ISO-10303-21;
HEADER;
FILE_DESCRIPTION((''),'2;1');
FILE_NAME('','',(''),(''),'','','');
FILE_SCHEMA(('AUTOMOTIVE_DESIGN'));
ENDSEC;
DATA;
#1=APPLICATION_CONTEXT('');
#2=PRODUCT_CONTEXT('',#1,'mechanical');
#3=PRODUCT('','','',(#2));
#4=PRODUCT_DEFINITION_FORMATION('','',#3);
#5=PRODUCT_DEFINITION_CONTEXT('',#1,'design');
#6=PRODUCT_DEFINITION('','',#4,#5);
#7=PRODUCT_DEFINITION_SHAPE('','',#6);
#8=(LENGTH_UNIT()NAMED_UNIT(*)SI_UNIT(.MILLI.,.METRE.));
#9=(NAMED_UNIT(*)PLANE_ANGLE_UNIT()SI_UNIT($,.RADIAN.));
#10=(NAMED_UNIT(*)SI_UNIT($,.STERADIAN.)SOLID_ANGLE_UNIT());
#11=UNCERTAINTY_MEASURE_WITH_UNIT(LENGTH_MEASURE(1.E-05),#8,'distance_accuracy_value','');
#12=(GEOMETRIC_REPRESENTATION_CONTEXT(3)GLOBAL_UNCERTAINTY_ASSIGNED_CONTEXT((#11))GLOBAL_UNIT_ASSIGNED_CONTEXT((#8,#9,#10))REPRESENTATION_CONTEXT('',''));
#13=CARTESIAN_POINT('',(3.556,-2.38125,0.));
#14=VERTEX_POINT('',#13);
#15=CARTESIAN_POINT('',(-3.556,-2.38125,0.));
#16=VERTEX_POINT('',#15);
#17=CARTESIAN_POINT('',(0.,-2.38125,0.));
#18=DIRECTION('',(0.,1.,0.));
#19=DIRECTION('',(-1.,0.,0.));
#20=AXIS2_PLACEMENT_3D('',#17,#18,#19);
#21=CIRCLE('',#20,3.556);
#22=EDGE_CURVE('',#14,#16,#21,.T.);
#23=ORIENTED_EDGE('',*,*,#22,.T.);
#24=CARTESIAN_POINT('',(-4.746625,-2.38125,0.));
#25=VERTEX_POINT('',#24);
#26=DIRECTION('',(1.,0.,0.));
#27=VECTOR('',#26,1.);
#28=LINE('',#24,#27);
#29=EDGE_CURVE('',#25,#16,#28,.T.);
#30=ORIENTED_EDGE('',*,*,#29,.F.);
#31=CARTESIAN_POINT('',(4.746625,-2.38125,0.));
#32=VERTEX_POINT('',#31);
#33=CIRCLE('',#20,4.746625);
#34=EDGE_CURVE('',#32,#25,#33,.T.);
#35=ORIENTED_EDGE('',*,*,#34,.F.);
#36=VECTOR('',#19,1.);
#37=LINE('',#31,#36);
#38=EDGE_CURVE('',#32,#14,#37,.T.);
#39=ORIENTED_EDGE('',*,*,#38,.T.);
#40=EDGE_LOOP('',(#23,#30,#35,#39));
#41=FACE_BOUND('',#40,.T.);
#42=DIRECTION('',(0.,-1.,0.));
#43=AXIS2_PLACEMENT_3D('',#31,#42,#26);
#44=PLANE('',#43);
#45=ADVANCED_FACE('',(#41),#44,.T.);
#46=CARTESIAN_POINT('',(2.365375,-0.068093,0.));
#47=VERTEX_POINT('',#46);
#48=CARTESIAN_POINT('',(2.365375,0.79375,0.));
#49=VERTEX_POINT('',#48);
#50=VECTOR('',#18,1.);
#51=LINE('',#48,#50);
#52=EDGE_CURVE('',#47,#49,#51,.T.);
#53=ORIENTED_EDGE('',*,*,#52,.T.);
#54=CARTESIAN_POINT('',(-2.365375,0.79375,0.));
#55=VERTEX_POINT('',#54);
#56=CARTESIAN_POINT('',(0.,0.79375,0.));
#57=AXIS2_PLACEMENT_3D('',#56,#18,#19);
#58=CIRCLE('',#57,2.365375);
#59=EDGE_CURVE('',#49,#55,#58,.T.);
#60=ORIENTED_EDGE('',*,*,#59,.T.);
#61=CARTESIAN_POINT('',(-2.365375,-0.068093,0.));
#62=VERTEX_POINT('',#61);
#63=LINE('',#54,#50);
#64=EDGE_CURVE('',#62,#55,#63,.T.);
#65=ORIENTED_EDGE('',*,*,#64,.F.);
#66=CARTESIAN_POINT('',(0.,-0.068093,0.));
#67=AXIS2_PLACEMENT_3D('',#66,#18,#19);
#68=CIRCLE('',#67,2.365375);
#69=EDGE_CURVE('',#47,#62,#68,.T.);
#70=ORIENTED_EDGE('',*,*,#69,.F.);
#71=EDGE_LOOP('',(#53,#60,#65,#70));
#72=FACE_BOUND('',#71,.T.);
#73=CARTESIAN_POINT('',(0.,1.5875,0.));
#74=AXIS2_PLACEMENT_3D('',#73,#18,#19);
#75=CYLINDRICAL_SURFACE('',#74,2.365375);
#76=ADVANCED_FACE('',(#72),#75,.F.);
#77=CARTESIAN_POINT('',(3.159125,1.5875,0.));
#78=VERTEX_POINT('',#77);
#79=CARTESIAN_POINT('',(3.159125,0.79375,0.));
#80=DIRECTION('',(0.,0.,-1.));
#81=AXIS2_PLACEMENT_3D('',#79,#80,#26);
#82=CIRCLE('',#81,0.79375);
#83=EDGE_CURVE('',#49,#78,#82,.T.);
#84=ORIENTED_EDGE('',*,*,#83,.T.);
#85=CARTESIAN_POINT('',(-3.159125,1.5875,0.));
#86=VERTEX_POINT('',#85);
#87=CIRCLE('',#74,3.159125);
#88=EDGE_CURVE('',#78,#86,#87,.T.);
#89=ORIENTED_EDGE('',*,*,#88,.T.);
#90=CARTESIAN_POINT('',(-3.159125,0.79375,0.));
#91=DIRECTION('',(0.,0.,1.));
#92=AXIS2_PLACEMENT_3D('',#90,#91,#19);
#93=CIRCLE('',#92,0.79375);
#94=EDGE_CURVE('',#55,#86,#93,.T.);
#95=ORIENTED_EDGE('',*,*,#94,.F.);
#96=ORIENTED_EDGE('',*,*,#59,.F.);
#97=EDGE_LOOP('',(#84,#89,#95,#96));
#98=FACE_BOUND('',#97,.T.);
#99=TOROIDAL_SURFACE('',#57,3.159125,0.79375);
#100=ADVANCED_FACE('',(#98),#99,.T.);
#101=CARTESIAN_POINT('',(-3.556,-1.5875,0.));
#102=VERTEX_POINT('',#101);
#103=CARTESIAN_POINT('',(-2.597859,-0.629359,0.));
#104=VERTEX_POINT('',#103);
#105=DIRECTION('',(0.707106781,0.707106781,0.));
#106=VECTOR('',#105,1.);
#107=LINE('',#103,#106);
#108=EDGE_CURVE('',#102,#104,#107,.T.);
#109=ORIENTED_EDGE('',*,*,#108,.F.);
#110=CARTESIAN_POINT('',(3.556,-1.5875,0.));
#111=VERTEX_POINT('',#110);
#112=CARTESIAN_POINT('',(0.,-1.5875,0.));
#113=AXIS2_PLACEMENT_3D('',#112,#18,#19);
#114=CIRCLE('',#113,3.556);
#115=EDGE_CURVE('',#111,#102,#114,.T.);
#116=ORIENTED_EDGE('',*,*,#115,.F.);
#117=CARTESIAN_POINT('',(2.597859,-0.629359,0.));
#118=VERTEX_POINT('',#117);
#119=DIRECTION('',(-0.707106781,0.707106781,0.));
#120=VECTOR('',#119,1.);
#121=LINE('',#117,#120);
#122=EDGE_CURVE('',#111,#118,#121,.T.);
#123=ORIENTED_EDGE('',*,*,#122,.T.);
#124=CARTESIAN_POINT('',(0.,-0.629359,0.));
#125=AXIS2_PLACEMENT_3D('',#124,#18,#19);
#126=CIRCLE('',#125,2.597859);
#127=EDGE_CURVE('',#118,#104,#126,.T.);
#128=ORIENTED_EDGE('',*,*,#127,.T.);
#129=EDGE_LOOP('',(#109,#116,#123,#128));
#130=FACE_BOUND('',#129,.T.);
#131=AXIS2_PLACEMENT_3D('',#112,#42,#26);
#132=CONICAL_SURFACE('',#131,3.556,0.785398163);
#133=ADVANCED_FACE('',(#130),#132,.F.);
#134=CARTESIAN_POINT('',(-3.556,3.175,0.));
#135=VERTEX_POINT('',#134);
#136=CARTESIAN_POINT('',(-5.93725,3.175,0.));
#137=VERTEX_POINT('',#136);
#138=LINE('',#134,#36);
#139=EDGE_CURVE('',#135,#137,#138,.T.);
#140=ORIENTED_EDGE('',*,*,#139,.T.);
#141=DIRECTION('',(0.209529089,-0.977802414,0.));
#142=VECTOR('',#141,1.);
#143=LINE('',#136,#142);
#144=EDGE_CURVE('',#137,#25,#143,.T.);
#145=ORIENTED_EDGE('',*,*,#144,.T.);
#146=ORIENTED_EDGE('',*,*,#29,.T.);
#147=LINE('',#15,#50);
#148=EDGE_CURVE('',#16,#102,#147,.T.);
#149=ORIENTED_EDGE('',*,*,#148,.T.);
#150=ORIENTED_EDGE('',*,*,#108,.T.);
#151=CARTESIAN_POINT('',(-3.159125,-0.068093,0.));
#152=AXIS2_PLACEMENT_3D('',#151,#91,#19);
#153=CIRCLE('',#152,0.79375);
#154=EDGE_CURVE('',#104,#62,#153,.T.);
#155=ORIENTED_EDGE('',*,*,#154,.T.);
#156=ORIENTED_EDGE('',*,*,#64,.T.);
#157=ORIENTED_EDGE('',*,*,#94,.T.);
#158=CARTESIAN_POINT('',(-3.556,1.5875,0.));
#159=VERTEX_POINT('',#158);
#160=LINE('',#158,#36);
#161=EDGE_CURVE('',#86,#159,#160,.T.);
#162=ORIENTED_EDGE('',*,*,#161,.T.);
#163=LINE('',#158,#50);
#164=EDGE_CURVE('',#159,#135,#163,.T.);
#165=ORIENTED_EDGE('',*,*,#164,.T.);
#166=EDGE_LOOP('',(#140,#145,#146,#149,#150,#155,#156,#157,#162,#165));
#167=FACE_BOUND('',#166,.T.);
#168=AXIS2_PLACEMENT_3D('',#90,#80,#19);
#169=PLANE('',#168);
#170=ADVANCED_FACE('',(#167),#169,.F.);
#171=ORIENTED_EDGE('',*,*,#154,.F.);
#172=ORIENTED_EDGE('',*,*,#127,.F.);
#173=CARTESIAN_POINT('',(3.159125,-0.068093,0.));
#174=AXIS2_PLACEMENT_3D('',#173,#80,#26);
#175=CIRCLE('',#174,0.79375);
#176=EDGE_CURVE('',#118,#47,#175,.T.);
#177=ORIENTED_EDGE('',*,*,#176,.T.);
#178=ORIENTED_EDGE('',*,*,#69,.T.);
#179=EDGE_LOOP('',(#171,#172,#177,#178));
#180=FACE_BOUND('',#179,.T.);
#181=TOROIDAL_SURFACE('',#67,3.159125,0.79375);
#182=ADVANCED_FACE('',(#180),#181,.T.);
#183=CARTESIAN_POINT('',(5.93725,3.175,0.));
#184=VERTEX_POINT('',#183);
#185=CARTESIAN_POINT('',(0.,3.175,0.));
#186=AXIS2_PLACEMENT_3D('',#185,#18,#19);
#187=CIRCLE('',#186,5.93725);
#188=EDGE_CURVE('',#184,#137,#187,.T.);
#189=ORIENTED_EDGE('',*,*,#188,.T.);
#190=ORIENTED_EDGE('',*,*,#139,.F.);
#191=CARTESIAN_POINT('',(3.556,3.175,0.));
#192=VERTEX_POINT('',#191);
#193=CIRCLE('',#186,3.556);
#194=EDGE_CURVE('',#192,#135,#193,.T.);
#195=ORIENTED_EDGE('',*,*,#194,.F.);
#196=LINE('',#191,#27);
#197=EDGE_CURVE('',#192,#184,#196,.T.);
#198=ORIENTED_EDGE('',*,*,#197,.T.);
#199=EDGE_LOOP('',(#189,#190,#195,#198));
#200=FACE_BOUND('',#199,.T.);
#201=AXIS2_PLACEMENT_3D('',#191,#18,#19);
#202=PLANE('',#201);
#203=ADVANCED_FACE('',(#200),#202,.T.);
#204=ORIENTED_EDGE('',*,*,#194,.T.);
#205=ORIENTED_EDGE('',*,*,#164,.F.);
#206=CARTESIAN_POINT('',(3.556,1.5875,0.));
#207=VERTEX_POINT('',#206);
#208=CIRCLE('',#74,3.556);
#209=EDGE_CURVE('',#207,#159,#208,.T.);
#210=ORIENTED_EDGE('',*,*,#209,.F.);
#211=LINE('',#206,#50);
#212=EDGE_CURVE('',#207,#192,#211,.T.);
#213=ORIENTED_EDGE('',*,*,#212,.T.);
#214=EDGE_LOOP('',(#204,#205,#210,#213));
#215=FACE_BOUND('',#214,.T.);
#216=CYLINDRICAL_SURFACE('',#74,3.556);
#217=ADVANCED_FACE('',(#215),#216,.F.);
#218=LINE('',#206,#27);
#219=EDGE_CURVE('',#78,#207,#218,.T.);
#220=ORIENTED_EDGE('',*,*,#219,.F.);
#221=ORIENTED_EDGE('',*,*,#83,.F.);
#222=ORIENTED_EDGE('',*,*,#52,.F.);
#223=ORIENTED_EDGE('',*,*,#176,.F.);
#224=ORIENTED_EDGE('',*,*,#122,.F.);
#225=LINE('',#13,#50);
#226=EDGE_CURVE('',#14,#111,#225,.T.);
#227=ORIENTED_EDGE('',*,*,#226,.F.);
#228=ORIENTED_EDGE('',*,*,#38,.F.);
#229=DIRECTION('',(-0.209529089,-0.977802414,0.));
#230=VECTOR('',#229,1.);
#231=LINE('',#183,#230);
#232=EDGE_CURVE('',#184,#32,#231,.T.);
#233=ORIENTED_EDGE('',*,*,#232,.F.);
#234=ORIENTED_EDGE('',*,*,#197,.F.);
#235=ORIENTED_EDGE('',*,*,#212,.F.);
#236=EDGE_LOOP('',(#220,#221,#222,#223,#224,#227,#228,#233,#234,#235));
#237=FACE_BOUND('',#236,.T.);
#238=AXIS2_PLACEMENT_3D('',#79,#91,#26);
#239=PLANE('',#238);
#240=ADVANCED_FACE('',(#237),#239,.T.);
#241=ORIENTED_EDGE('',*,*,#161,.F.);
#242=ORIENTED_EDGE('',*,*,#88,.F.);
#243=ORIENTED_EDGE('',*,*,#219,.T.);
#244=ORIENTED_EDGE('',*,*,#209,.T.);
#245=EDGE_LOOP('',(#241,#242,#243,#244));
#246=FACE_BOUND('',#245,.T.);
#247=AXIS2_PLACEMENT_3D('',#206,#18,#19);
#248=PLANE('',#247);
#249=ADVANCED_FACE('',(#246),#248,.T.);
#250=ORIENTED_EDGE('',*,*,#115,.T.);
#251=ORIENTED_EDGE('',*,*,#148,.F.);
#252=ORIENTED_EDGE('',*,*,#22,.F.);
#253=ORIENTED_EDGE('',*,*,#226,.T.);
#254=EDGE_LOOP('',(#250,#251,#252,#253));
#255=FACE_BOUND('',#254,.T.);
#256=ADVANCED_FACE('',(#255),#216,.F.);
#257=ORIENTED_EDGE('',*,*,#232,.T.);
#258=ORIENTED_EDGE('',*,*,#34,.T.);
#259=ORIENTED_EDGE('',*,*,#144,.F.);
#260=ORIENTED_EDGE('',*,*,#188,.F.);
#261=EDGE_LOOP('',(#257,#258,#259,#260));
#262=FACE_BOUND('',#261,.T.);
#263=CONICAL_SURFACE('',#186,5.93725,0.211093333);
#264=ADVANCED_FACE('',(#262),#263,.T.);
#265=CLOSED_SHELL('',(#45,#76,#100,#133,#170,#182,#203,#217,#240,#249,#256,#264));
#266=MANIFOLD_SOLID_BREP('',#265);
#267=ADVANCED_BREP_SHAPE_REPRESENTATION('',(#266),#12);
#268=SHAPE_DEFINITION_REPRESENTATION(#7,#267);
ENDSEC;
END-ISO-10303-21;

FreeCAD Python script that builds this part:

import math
import FreeCAD as App
import Part
import Sketcher
from FreeCAD import Vector
Q = App.Units.Quantity

doc = App.newDocument("Part")
params = doc.addObject("Spreadsheet::Sheet", "Params")
for row, (alias, value) in enumerate([
    ("sketch1_radius", "0.03125 in"),
    ("sketch1_width", "0.09375 in"),
    ("sketch1_width2", "0.046875 in"),
    ("sketch1_width3", "0.015625 in"),
    ("sketch1_height", "0.0625 in"),
    ("revolution_angle", "180 deg"),
], start=1):
    params.set(f"A{row}", alias)
    params.set(f"B{row}", "=" + value)
    params.setAlias(f"B{row}", alias)

body = doc.addObject("PartDesign::Body", "Body")

# Sketch on XY plane
sketch1 = body.newObject("Sketcher::SketchObject", "Sketch")
sketch1.AttachmentSupport = (doc.getObject("XY_Plane"), [""])
sketch1.MapMode = "FlatFace"
sketch1.addGeometry([
    Part.LineSegment(Vector(-3.556, 1.5875, 0), Vector(-3.556, 3.175, 0)),  # 0
    Part.LineSegment(Vector(-3.556, 3.175, 0), Vector(-5.93725, 3.175, 0)),  # 1
    Part.LineSegment(Vector(-5.93725, 3.175, 0), Vector(-4.746625, -2.38125, 0)),  # 2
    Part.LineSegment(Vector(-4.746625, -2.38125, 0), Vector(-3.556, -2.38125, 0)),  # 3
    Part.LineSegment(Vector(-3.556, -2.38125, 0), Vector(-3.556, -1.5875, 0)),  # 4
    Part.LineSegment(Vector(-3.556, -1.5875, 0), Vector(-2.597859, -0.629359, 0)),  # 5
    Part.ArcOfCircle(Part.Circle(Vector(-3.159125, -0.068093, 0), Vector(0, 0, 1), 0.79375), math.radians(-45), math.radians(0)),  # 6
    Part.LineSegment(Vector(-2.365375, -0.068093, 0), Vector(-2.365375, 0.79375, 0)),  # 7
    Part.ArcOfCircle(Part.Circle(Vector(-3.159125, 0.79375, 0), Vector(0, 0, 1), 0.79375), math.radians(0), math.radians(90)),  # 8
    Part.LineSegment(Vector(-3.159125, 1.5875, 0), Vector(-3.556, 1.5875, 0)),  # 9
], False)
sketch1.addConstraint([
    Sketcher.Constraint("Coincident", 0, 2, 1, 1),
    Sketcher.Constraint("Coincident", 1, 2, 2, 1),
    Sketcher.Constraint("Coincident", 2, 2, 3, 1),
    Sketcher.Constraint("Coincident", 3, 2, 4, 1),
    Sketcher.Constraint("Coincident", 4, 2, 5, 1),
    Sketcher.Constraint("Tangent", 5, 2, 6, 1),
    Sketcher.Constraint("Tangent", 6, 2, 7, 1),
    Sketcher.Constraint("Tangent", 7, 2, 8, 1),
    Sketcher.Constraint("Tangent", 8, 2, 9, 1),
    Sketcher.Constraint("Coincident", 9, 2, 0, 1),
    Sketcher.Constraint("Vertical", 0),
    Sketcher.Constraint("Horizontal", 1),
    Sketcher.Constraint("Horizontal", 3),
    Sketcher.Constraint("Vertical", 4),
    Sketcher.Constraint("Vertical", 7),
    Sketcher.Constraint("Horizontal", 9),
    Sketcher.Constraint("Equal", 6, 8),
    Sketcher.Constraint("Symmetric", 4, 2, 9, 2, -1),
    Sketcher.Constraint("Angle", 5, Q("45 deg")),
    Sketcher.Constraint("Radius", 6, Q("0.03125 in")),
    Sketcher.Constraint("DistanceX", 1, 2, 1, 1, Q("0.09375 in")),
    Sketcher.Constraint("DistanceX", 3, 1, 3, 2, Q("0.046875 in")),
    Sketcher.Constraint("DistanceX", 9, 2, 9, 1, Q("0.015625 in")),
    Sketcher.Constraint("DistanceY", 0, 1, 0, 2, Q("0.0625 in")),
    Sketcher.Constraint("DistanceY", 4, 1, 4, 2, Q("0.03125 in")),
    Sketcher.Constraint("DistanceX", 0, 2, -1, 1, Q("0.14 in")),
    Sketcher.Constraint("DistanceY", -1, 1, 8, 3, Q("0.03125 in")),
])
sketch1.setExpression("Constraints[19]", "Params.sketch1_radius")
sketch1.setExpression("Constraints[20]", "Params.sketch1_width")
sketch1.setExpression("Constraints[21]", "Params.sketch1_width2")
sketch1.setExpression("Constraints[22]", "Params.sketch1_width3")
sketch1.setExpression("Constraints[23]", "Params.sketch1_height")
revolution = body.newObject("PartDesign::Revolution", "Revolution")
revolution.Profile = sketch1
revolution.ReferenceAxis = (sketch1, ["V_Axis"])
revolution.setExpression("Angle", "Params.revolution_angle")
revolution.Reversed = True

doc.recompute()
